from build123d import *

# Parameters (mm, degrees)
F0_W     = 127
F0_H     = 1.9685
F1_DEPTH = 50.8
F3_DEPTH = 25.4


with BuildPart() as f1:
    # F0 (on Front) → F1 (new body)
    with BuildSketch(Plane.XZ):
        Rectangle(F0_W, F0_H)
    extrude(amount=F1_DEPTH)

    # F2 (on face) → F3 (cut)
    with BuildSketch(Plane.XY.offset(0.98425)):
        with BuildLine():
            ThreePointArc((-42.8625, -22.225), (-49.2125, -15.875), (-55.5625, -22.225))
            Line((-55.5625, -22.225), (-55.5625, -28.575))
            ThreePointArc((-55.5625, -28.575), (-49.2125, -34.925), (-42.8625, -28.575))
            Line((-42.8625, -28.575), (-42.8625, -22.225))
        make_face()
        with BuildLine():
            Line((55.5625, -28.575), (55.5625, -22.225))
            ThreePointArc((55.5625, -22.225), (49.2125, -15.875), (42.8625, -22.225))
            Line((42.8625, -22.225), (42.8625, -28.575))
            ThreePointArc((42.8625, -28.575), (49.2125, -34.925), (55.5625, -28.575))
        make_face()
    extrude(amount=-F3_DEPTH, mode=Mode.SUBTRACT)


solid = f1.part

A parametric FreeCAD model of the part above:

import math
import FreeCAD as App
import Part
import Sketcher
Q = App.Units.Quantity

doc = App.newDocument("Part")
body = doc.addObject("PartDesign::Body", "Body")

sketch1 = body.newObject("Sketcher::SketchObject", "Sketch")
sketch1.AttachmentSupport = (doc.getObject("XZ_Plane"), [""])
sketch1.MapMode = "FlatFace"
sketch1.addGeometry([
    Part.LineSegment(App.Vector(-63.5, 0.98425, 0), App.Vector(-63.5, -0.98425, 0)),
    Part.LineSegment(App.Vector(-63.5, -0.98425, 0), App.Vector(63.5, -0.98425, 0)),
    Part.LineSegment(App.Vector(63.5, -0.98425, 0), App.Vector(63.5, 0.98425, 0)),
    Part.LineSegment(App.Vector(63.5, 0.98425, 0), App.Vector(-63.5, 0.98425, 0)),
], False)
sketch1.addConstraint([
    Sketcher.Constraint("Coincident", 0, 2, 1, 1),
    Sketcher.Constraint("Coincident", 1, 2, 2, 1),
    Sketcher.Constraint("Coincident", 2, 2, 3, 1),
    Sketcher.Constraint("Coincident", 3, 2, 0, 1),
    Sketcher.Constraint("Vertical", 0),
    Sketcher.Constraint("Horizontal", 1),
    Sketcher.Constraint("Vertical", 2),
    Sketcher.Constraint("Horizontal", 3),
    Sketcher.Constraint("Symmetric", 0, 2, 2, 2, -1, 1),
    Sketcher.Constraint("DistanceX", 1, 1, 1, 2, Q("5 in")),
    Sketcher.Constraint("DistanceY", 0, 2, 0, 1, Q("0.0775 in")),
])
pad1 = body.newObject("PartDesign::Pad", "Pad")
pad1.Profile = sketch1
pad1.Length = Q("2 in")

sketch2 = body.newObject("Sketcher::SketchObject", "Sketch001")
sketch2.AttachmentSupport = (doc.getObject("XY_Plane"), [""])
sketch2.MapMode = "FlatFace"
sketch2.AttachmentOffset = App.Placement(App.Vector(0, 0, 0.98425), App.Rotation())
sketch2.addGeometry([
    Part.ArcOfCircle(Part.Circle(App.Vector(-49.2125, -22.225, 0), App.Vector(0, 0, 1), 6.35), math.radians(0), math.radians(180)),
    Part.LineSegment(App.Vector(-55.5625, -22.225, 0), App.Vector(-55.5625, -28.575, 0)),
    Part.ArcOfCircle(Part.Circle(App.Vector(-49.2125, -28.575, 0), App.Vector(0, 0, 1), 6.35), math.radians(180), math.radians(360)),
    Part.LineSegment(App.Vector(-42.8625, -28.575, 0), App.Vector(-42.8625, -22.225, 0)),
    Part.LineSegment(App.Vector(55.5625, -28.575, 0), App.Vector(55.5625, -22.225, 0)),
    Part.ArcOfCircle(Part.Circle(App.Vector(49.2125, -22.225, 0), App.Vector(0, 0, 1), 6.35), math.radians(0), math.radians(180)),
    Part.LineSegment(App.Vector(42.8625, -22.225, 0), App.Vector(42.8625, -28.575, 0)),
    Part.ArcOfCircle(Part.Circle(App.Vector(49.2125, -28.575, 0), App.Vector(0, 0, 1), 6.35), math.radians(180), math.radians(360)),
], False)
sketch2.addConstraint([
    Sketcher.Constraint("Tangent", 0, 2, 1, 1),
    Sketcher.Constraint("Tangent", 1, 2, 2, 1),
    Sketcher.Constraint("Tangent", 2, 2, 3, 1),
    Sketcher.Constraint("Tangent", 3, 2, 0, 1),
    Sketcher.Constraint("Tangent", 4, 2, 5, 1),
    Sketcher.Constraint("Tangent", 5, 2, 6, 1),
    Sketcher.Constraint("Tangent", 6, 2, 7, 1),
    Sketcher.Constraint("Tangent", 7, 2, 4, 1),
    Sketcher.Constraint("Vertical", 1),
    Sketcher.Constraint("Vertical", 3),
    Sketcher.Constraint("Vertical", 4),
    Sketcher.Constraint("Vertical", 6),
    Sketcher.Constraint("Equal", 2, 5),
    Sketcher.Constraint("Symmetric", 0, 3, 5, 3, -2),
    Sketcher.Constraint("Horizontal", 2, 3, 7, 3),
    Sketcher.Constraint("Radius", 0, Q("0.25 in")),
    Sketcher.Constraint("DistanceY", 1, 2, 1, 1, Q("0.25 in")),
    Sketcher.Constraint("DistanceX", 0, 3, -1, 1, Q("1.9375 in")),
    Sketcher.Constraint("DistanceY", 0, 3, -1, 1, Q("0.875 in")),
])
pocket1 = body.newObject("PartDesign::Pocket", "Pocket")
pocket1.Profile = sketch2
pocket1.Length = Q("1 in")

doc.recompute()
